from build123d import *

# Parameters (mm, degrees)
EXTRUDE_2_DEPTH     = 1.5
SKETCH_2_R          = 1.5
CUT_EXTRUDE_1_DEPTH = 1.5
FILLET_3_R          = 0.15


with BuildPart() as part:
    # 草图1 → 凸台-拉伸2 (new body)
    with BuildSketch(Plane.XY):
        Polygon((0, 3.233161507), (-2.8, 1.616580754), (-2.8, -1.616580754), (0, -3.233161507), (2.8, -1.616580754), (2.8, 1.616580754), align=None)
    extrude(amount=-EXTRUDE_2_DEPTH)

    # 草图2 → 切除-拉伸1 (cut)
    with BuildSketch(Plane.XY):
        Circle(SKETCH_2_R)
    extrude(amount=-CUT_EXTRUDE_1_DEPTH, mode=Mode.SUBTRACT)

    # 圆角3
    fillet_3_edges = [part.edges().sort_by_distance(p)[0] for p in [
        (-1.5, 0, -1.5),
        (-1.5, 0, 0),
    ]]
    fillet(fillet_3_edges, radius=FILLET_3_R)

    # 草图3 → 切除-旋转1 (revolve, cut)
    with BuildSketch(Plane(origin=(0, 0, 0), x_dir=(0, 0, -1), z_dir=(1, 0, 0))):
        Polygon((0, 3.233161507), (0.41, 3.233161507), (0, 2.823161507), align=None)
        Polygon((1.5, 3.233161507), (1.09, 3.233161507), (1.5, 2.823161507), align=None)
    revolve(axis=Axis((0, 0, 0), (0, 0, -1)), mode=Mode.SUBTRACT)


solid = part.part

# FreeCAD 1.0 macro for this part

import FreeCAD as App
import Part
import Sketcher

V = App.Vector
Q = App.Units.Quantity


def edges_at(feature, points):
    """Names of the edges that pass closest to the given points."""
    edges = feature.Shape.Edges
    near = lambda p: min(range(len(edges)), key=lambda i: edges[i].distToShape(Part.Vertex(*p))[0])
    return sorted({f"Edge{near(p) + 1}" for p in points})

doc = App.newDocument("Part")
body = doc.addObject("PartDesign::Body", "Body")

# Sketch on XY plane
sketch1 = doc.addObject("Sketcher::SketchObject", "Sketch")
body.addObject(sketch1)
sketch1.AttachmentSupport = (doc.XY_Plane, [""])
sketch1.MapMode = "FlatFace"
sketch1.addGeometry(Part.LineSegment(V(0, 3.2, 0), V(-2.8, 1.6, 0)), False)
sketch1.addGeometry(Part.LineSegment(V(-2.8, 1.6, 0), V(-2.8, -1.6, 0)), False)
sketch1.addGeometry(Part.LineSegment(V(-2.8, -1.6, 0), V(0, -3.2, 0)), False)
sketch1.addGeometry(Part.LineSegment(V(0, -3.2, 0), V(2.8, -1.6, 0)), False)
sketch1.addGeometry(Part.LineSegment(V(2.8, -1.6, 0), V(2.8, 1.6, 0)), False)
sketch1.addGeometry(Part.LineSegment(V(2.8, 1.6, 0), V(0, 3.2, 0)), False)
sketch1.addConstraint(Sketcher.Constraint("Coincident", 0, 2, 1, 1))
sketch1.addConstraint(Sketcher.Constraint("Coincident", 1, 2, 2, 1))
sketch1.addConstraint(Sketcher.Constraint("Coincident", 2, 2, 3, 1))
sketch1.addConstraint(Sketcher.Constraint("Coincident", 3, 2, 4, 1))
sketch1.addConstraint(Sketcher.Constraint("Coincident", 4, 2, 5, 1))
sketch1.addConstraint(Sketcher.Constraint("Coincident", 5, 2, 0, 1))
sketch1.addConstraint(Sketcher.Constraint("Vertical", 1))
sketch1.addConstraint(Sketcher.Constraint("Vertical", 4))
sketch1.addConstraint(Sketcher.Constraint("Symmetric", 0, 2, 3, 2, -1, 1))
sketch1.addConstraint(Sketcher.Constraint("Symmetric", 2, 2, 5, 2, -1, 1))
sketch1.addConstraint(Sketcher.Constraint("PointOnObject", 2, 2, -2))
sketch1.addConstraint(Sketcher.Constraint("Parallel", 2, 5))
sketch1.addConstraint(Sketcher.Constraint("Horizontal", 1, 2, 3, 2))
sketch1.addConstraint(Sketcher.Constraint("Angle", 0, Q("-150 deg")))
sketch1.addConstraint(Sketcher.Constraint("DistanceX", 0, 2, -1, 1, 2.8))
sketch1.addConstraint(Sketcher.Constraint("DistanceY", 1, 2, 1, 1, 3.233162))
pad1 = doc.addObject("PartDesign::Pad", "Pad")
body.addObject(pad1)
pad1.Profile = sketch1
pad1.Length = 1.5
pad1.Reversed = True

# Sketch on XY plane
sketch2 = doc.addObject("Sketcher::SketchObject", "Sketch001")
body.addObject(sketch2)
sketch2.AttachmentSupport = (doc.XY_Plane, [""])
sketch2.MapMode = "FlatFace"
sketch2.addGeometry(Part.Circle(V(0, 0, 0), V(0, 0, 1), 1.5), False)
sketch2.addConstraint(Sketcher.Constraint("Coincident", 0, 3, -1, 1))
sketch2.addConstraint(Sketcher.Constraint("Diameter", 0, 3.0))
pocket1 = doc.addObject("PartDesign::Pocket", "Pocket")
body.addObject(pocket1)
pocket1.Profile = sketch2
pocket1.Length = 1.5
doc.recompute()

fillet = doc.addObject("PartDesign::Fillet", "Fillet")
body.addObject(fillet)
fillet.Base = (pocket1, edges_at(pocket1, [(-1.5, 0, -1.5), (-1.5, 0, 0)]))
fillet.Radius = 0.15

# Sketch on YZ plane
sketch3 = doc.addObject("Sketcher::SketchObject", "Sketch002")
body.addObject(sketch3)
sketch3.AttachmentSupport = (doc.YZ_Plane, [""])
sketch3.MapMode = "FlatFace"
sketch3.addGeometry(Part.LineSegment(V(3.23, -0.41, 0), V(3.23, 0, 0)), False)
sketch3.addGeometry(Part.LineSegment(V(3.23, 0, 0), V(2.82, 0, 0)), False)
sketch3.addGeometry(Part.LineSegment(V(2.82, 0, 0), V(3.23, -0.41, 0)), False)
sketch3.addGeometry(Part.LineSegment(V(3.23, -1.5, 0), V(3.23, -1.09, 0)), False)
sketch3.addGeometry(Part.LineSegment(V(3.23, -1.09, 0), V(2.82, -1.5, 0)), False)
sketch3.addGeometry(Part.LineSegment(V(2.82, -1.5, 0), V(3.23, -1.5, 0)), False)
sketch3.addConstraint(Sketcher.Constraint("Coincident", 0, 2, 1, 1))
sketch3.addConstraint(Sketcher.Constraint("Coincident", 1, 2, 2, 1))
sketch3.addConstraint(Sketcher.Constraint("Coincident", 2, 2, 0, 1))
sketch3.addConstraint(Sketcher.Constraint("Coincident", 3, 2, 4, 1))
sketch3.addConstraint(Sketcher.Constraint("Coincident", 4, 2, 5, 1))
sketch3.addConstraint(Sketcher.Constraint("Coincident", 5, 2, 3, 1))
sketch3.addConstraint(Sketcher.Constraint("Vertical", 0))
sketch3.addConstraint(Sketcher.Constraint("Horizontal", 1))
sketch3.addConstraint(Sketcher.Constraint("Vertical", 3))
sketch3.addConstraint(Sketcher.Constraint("Horizontal", 5))
sketch3.addConstraint(Sketcher.Constraint("PointOnObject", 0, 2, -1))
sketch3.addConstraint(Sketcher.Constraint("Perpendicular", 2, 4))
sketch3.addConstraint(Sketcher.Constraint("Vertical", 2, 2, 3, 2))
sketch3.addConstraint(Sketcher.Constraint("Vertical", 1, 2, 4, 2))
sketch3.addConstraint(Sketcher.Constraint("Equal", 5, 0))
sketch3.addConstraint(Sketcher.Constraint("DistanceX", 1, 2, 1, 1, 0.41))
sketch3.addConstraint(Sketcher.Constraint("DistanceY", 4, 2, -1, 1, 1.5))
sketch3.addConstraint(Sketcher.Constraint("DistanceX", -1, 1, 0, 2, 3.233162))
groove = doc.addObject("PartDesign::Groove", "Groove")
body.addObject(groove)
groove.Profile = sketch3
groove.ReferenceAxis = (sketch3, ["V_Axis"])
groove.Angle = 360

doc.recompute()
